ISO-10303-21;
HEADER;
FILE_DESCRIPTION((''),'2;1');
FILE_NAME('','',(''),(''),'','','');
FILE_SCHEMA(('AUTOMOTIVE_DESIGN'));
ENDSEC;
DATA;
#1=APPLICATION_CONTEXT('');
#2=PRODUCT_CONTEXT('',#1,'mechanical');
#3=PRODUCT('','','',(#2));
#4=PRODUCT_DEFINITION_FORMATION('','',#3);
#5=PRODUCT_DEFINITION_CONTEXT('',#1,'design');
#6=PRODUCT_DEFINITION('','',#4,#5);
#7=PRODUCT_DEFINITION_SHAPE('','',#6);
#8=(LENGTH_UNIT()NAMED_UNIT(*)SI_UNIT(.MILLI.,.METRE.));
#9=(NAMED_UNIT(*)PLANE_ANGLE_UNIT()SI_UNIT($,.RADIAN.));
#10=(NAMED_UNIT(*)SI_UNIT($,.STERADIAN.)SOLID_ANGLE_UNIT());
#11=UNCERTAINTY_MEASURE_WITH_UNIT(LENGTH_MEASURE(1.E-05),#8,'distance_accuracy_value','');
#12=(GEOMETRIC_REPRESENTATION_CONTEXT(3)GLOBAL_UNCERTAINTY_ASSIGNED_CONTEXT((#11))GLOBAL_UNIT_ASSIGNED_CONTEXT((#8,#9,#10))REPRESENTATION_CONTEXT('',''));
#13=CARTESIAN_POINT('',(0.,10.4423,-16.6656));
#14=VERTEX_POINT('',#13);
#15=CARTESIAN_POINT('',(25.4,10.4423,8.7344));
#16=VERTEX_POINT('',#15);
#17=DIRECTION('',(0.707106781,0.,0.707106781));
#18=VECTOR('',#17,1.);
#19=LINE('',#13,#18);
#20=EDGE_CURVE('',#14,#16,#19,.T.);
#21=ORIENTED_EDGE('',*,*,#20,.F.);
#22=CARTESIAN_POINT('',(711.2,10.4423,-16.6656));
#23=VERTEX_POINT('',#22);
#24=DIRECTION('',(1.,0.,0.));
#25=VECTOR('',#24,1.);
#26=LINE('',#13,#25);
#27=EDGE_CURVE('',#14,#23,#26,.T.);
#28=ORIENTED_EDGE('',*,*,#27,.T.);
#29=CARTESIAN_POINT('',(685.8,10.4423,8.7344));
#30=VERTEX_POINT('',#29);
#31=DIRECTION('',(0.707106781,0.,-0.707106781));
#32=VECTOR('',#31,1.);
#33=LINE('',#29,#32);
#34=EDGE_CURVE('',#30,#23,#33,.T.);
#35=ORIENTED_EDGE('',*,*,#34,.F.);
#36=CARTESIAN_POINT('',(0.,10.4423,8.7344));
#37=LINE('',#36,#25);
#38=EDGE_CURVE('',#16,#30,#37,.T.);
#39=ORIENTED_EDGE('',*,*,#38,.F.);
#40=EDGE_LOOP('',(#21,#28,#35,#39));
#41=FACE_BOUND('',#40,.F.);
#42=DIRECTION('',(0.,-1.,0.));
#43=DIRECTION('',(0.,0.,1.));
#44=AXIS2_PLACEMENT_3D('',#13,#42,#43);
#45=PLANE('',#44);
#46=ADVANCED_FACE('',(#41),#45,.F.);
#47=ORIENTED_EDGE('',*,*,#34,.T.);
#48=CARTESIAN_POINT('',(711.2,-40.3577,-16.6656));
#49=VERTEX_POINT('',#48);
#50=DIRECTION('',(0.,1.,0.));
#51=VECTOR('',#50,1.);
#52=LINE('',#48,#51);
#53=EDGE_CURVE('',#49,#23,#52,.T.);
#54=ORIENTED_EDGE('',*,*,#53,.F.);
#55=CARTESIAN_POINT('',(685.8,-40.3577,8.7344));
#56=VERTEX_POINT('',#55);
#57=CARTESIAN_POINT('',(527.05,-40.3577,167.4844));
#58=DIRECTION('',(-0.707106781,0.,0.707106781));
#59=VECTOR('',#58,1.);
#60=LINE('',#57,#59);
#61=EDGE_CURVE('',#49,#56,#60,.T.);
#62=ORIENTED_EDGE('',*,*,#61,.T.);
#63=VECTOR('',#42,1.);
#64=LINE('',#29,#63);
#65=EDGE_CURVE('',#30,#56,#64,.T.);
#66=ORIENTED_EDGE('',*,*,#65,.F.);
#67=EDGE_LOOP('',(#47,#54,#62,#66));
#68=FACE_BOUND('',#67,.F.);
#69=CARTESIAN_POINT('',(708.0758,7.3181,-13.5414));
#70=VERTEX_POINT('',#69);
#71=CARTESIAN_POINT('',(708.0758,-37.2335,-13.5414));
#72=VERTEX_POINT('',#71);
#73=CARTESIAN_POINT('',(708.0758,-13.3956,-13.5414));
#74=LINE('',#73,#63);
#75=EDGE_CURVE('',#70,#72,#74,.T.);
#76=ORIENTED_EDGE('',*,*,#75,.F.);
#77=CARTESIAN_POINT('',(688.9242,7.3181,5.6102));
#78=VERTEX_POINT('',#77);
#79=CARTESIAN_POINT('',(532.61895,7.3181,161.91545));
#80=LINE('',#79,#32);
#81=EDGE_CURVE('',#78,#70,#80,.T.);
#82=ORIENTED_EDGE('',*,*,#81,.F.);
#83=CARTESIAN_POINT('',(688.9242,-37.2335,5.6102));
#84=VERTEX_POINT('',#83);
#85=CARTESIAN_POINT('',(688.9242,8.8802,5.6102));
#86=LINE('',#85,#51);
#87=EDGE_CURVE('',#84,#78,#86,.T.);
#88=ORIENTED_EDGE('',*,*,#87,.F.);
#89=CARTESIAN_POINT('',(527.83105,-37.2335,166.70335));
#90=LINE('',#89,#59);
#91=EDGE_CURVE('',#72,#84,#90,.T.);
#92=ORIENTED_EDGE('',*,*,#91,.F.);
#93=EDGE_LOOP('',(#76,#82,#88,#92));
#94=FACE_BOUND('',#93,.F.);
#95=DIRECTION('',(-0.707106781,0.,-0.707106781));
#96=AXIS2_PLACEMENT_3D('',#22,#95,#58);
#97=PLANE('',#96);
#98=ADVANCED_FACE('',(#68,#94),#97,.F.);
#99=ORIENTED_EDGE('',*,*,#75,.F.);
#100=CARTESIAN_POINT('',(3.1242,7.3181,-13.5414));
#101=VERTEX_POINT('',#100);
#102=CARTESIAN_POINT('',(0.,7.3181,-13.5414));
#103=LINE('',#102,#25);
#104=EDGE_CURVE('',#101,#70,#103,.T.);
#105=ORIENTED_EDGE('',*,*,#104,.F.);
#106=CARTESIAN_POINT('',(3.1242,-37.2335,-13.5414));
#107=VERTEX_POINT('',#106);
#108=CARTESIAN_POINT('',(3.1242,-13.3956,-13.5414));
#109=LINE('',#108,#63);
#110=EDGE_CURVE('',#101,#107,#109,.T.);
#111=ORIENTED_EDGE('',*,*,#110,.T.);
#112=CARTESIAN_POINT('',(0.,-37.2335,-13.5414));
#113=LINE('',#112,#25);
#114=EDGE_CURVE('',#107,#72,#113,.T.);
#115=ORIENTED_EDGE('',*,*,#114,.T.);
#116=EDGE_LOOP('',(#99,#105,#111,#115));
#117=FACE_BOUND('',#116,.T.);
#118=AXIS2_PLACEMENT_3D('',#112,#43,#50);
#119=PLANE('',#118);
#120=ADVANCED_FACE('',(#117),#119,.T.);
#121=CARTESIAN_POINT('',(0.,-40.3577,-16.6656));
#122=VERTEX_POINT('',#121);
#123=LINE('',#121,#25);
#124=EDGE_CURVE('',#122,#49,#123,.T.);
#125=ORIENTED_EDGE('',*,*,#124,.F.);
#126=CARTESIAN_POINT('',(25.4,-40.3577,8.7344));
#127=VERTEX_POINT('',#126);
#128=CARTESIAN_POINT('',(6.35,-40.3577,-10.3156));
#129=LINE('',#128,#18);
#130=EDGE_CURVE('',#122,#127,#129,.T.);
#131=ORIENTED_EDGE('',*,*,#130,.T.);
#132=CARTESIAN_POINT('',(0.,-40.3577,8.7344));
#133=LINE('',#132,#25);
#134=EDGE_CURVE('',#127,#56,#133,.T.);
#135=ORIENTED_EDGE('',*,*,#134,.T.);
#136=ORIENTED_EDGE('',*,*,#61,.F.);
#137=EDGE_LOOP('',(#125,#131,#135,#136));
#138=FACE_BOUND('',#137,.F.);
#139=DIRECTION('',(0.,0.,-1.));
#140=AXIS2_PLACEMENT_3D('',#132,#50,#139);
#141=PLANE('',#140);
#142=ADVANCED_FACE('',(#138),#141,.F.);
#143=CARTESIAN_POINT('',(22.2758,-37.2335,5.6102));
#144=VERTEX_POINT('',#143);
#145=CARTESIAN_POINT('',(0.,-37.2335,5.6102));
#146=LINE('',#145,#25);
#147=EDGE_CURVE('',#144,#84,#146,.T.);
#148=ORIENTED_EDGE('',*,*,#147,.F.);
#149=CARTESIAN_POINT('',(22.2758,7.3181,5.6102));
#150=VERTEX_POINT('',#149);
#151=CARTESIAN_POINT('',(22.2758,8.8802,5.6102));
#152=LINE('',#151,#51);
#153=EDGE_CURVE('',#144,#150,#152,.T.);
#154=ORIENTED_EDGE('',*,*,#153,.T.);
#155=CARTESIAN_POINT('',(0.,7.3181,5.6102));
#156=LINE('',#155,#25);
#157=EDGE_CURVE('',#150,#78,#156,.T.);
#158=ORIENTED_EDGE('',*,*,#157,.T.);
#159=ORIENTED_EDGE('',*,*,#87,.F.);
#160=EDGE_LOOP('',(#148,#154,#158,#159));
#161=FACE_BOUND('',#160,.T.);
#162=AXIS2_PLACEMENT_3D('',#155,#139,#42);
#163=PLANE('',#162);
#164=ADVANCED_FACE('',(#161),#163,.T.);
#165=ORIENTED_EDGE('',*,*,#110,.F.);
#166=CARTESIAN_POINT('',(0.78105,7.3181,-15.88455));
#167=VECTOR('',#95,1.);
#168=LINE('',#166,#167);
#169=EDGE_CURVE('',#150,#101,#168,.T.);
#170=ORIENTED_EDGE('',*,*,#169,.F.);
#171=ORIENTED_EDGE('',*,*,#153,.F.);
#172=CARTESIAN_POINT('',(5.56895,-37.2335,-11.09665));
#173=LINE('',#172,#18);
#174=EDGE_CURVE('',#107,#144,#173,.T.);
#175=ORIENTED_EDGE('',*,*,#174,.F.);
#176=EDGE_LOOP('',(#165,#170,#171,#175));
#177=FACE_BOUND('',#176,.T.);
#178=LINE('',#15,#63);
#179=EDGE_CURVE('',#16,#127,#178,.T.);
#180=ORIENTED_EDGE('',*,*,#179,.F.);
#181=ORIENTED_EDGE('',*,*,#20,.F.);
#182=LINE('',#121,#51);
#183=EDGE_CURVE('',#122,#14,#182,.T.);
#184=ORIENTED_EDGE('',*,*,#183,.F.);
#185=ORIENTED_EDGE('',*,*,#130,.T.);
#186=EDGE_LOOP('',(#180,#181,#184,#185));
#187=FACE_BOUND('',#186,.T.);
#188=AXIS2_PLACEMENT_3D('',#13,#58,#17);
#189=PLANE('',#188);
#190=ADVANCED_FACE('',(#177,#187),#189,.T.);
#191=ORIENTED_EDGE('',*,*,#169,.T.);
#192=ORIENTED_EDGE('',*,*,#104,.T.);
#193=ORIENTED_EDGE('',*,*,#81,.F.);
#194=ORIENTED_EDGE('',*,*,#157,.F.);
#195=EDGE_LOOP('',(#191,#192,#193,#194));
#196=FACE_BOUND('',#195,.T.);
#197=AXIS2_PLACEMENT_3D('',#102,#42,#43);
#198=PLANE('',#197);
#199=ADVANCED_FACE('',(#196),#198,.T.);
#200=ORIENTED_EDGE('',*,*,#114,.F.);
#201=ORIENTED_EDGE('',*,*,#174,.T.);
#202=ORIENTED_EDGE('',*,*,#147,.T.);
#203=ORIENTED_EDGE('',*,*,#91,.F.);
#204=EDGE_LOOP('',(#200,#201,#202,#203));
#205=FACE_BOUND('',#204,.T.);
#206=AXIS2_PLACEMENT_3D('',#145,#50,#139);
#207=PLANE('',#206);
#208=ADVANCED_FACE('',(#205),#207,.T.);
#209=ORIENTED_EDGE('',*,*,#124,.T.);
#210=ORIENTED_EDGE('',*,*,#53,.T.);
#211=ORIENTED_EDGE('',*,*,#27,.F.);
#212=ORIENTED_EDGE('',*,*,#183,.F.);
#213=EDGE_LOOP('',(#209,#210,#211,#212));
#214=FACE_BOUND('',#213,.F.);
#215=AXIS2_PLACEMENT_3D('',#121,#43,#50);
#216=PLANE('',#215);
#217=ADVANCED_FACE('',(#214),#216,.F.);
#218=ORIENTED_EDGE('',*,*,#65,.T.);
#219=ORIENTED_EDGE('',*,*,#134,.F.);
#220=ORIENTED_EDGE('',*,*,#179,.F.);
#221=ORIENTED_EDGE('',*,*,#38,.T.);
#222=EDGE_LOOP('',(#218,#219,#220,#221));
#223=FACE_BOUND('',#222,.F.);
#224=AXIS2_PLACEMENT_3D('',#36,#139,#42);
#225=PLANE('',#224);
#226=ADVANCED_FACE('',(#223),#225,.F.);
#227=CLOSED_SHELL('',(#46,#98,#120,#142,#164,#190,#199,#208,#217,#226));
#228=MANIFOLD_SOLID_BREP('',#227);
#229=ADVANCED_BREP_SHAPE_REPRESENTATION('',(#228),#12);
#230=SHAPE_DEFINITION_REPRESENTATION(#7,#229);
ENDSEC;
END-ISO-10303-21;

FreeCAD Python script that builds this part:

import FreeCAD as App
import Part
import Sketcher
from FreeCAD import Vector
Q = App.Units.Quantity


def add_polygon(sketch, points):
    """Adds a closed chain of lines whose ends are joined by coincident constraints."""
    first, n = sketch.GeometryCount, len(points)
    for a, b in zip(points, points[1:] + points[:1]):
        sketch.addGeometry(Part.LineSegment(App.Vector(*a, 0), App.Vector(*b, 0)), False)
    for i in range(n):
        sketch.addConstraint(Sketcher.Constraint("Coincident", first + i, 2, first + (i + 1) % n, 1))

doc = App.newDocument("Part")
body = doc.addObject("PartDesign::Body", "Body")

sketch1 = body.newObject("Sketcher::SketchObject", "Sketch")
sketch1.AttachmentSupport = (doc.getObject("YZ_Plane"), [""])
sketch1.MapMode = "FlatFace"
add_polygon(sketch1, [(10, -17), (10, 9), (-40, 9), (-40, -17)])
add_polygon(sketch1, [(-37, 6), (7, 6), (7, -14), (-37, -14)])
sketch1.addConstraint([
    Sketcher.Constraint("Vertical", 0),
    Sketcher.Constraint("Horizontal", 1),
    Sketcher.Constraint("Vertical", 2),
    Sketcher.Constraint("Horizontal", 3),
    Sketcher.Constraint("Horizontal", 4),
    Sketcher.Constraint("Vertical", 5),
    Sketcher.Constraint("Horizontal", 6),
    Sketcher.Constraint("Vertical", 7),
    Sketcher.Constraint("DistanceX", 1, 2, 1, 1, Q("2 in")),
    Sketcher.Constraint("DistanceY", 0, 1, 0, 2, Q("1 in")),
    Sketcher.Constraint("DistanceX", 4, 2, 0, 2, Q("0.123 in")),
    Sketcher.Constraint("DistanceY", 4, 2, 0, 2, Q("0.123 in")),
    Sketcher.Constraint("DistanceY", 3, 2, 5, 2, Q("0.123 in")),
    Sketcher.Constraint("DistanceX", 2, 2, 6, 2, Q("0.123 in")),
    Sketcher.Constraint("DistanceX", -1, 1, 0, 2, 10.4423),
    Sketcher.Constraint("DistanceY", -1, 1, 0, 2, 8.7344),
])
pad1 = body.newObject("PartDesign::Pad", "Pad")
pad1.Profile = sketch1
pad1.Length = Q("28 in")

sketch2 = body.newObject("Sketcher::SketchObject", "Sketch001")
sketch2.AttachmentSupport = (doc.getObject("XZ_Plane"), [""])
sketch2.MapMode = "FlatFace"
sketch2.AttachmentOffset = App.Placement(Vector(0, 0, -10.4423), App.Rotation())
add_polygon(sketch2, [(0, -17), (0, 9), (25, 9)])
sketch2.addConstraint([
    Sketcher.Constraint("Vertical", 0),
    Sketcher.Constraint("Horizontal", 1),
    Sketcher.Constraint("PointOnObject", 0, 2, -2),
    Sketcher.Constraint("Equal", 1, 0),
    Sketcher.Constraint("DistanceX", 1, 1, 1, 2, Q("1 in")),
    Sketcher.Constraint("DistanceY", -1, 1, 0, 2, 8.7344),
])
pocket1 = body.newObject("PartDesign::Pocket", "Pocket")
pocket1.Profile = sketch2
pocket1.Length = Q("28 in")
pocket1.Reversed = True

sketch3 = body.newObject("Sketcher::SketchObject", "Sketch002")
sketch3.AttachmentSupport = (doc.getObject("XZ_Plane"), [""])
sketch3.MapMode = "FlatFace"
sketch3.AttachmentOffset = App.Placement(Vector(0, 0, -10.4423), App.Rotation())
add_polygon(sketch3, [(711, -17), (686, 9), (711, 9)])
sketch3.addConstraint([
    Sketcher.Constraint("Horizontal", 1),
    Sketcher.Constraint("Vertical", 2),
    Sketcher.Constraint("Equal", 1, 2),
    Sketcher.Constraint("DistanceX", 1, 1, 1, 2, Q("1 in")),
    Sketcher.Constraint("DistanceX", -1, 1, 0, 2, Q("27 in")),
    Sketcher.Constraint("DistanceY", -1, 1, 0, 2, 8.7344),
])
pocket2 = body.newObject("PartDesign::Pocket", "Pocket001")
pocket2.Profile = sketch3
pocket2.Length = Q("28 in")
pocket2.Reversed = True

doc.recompute()
